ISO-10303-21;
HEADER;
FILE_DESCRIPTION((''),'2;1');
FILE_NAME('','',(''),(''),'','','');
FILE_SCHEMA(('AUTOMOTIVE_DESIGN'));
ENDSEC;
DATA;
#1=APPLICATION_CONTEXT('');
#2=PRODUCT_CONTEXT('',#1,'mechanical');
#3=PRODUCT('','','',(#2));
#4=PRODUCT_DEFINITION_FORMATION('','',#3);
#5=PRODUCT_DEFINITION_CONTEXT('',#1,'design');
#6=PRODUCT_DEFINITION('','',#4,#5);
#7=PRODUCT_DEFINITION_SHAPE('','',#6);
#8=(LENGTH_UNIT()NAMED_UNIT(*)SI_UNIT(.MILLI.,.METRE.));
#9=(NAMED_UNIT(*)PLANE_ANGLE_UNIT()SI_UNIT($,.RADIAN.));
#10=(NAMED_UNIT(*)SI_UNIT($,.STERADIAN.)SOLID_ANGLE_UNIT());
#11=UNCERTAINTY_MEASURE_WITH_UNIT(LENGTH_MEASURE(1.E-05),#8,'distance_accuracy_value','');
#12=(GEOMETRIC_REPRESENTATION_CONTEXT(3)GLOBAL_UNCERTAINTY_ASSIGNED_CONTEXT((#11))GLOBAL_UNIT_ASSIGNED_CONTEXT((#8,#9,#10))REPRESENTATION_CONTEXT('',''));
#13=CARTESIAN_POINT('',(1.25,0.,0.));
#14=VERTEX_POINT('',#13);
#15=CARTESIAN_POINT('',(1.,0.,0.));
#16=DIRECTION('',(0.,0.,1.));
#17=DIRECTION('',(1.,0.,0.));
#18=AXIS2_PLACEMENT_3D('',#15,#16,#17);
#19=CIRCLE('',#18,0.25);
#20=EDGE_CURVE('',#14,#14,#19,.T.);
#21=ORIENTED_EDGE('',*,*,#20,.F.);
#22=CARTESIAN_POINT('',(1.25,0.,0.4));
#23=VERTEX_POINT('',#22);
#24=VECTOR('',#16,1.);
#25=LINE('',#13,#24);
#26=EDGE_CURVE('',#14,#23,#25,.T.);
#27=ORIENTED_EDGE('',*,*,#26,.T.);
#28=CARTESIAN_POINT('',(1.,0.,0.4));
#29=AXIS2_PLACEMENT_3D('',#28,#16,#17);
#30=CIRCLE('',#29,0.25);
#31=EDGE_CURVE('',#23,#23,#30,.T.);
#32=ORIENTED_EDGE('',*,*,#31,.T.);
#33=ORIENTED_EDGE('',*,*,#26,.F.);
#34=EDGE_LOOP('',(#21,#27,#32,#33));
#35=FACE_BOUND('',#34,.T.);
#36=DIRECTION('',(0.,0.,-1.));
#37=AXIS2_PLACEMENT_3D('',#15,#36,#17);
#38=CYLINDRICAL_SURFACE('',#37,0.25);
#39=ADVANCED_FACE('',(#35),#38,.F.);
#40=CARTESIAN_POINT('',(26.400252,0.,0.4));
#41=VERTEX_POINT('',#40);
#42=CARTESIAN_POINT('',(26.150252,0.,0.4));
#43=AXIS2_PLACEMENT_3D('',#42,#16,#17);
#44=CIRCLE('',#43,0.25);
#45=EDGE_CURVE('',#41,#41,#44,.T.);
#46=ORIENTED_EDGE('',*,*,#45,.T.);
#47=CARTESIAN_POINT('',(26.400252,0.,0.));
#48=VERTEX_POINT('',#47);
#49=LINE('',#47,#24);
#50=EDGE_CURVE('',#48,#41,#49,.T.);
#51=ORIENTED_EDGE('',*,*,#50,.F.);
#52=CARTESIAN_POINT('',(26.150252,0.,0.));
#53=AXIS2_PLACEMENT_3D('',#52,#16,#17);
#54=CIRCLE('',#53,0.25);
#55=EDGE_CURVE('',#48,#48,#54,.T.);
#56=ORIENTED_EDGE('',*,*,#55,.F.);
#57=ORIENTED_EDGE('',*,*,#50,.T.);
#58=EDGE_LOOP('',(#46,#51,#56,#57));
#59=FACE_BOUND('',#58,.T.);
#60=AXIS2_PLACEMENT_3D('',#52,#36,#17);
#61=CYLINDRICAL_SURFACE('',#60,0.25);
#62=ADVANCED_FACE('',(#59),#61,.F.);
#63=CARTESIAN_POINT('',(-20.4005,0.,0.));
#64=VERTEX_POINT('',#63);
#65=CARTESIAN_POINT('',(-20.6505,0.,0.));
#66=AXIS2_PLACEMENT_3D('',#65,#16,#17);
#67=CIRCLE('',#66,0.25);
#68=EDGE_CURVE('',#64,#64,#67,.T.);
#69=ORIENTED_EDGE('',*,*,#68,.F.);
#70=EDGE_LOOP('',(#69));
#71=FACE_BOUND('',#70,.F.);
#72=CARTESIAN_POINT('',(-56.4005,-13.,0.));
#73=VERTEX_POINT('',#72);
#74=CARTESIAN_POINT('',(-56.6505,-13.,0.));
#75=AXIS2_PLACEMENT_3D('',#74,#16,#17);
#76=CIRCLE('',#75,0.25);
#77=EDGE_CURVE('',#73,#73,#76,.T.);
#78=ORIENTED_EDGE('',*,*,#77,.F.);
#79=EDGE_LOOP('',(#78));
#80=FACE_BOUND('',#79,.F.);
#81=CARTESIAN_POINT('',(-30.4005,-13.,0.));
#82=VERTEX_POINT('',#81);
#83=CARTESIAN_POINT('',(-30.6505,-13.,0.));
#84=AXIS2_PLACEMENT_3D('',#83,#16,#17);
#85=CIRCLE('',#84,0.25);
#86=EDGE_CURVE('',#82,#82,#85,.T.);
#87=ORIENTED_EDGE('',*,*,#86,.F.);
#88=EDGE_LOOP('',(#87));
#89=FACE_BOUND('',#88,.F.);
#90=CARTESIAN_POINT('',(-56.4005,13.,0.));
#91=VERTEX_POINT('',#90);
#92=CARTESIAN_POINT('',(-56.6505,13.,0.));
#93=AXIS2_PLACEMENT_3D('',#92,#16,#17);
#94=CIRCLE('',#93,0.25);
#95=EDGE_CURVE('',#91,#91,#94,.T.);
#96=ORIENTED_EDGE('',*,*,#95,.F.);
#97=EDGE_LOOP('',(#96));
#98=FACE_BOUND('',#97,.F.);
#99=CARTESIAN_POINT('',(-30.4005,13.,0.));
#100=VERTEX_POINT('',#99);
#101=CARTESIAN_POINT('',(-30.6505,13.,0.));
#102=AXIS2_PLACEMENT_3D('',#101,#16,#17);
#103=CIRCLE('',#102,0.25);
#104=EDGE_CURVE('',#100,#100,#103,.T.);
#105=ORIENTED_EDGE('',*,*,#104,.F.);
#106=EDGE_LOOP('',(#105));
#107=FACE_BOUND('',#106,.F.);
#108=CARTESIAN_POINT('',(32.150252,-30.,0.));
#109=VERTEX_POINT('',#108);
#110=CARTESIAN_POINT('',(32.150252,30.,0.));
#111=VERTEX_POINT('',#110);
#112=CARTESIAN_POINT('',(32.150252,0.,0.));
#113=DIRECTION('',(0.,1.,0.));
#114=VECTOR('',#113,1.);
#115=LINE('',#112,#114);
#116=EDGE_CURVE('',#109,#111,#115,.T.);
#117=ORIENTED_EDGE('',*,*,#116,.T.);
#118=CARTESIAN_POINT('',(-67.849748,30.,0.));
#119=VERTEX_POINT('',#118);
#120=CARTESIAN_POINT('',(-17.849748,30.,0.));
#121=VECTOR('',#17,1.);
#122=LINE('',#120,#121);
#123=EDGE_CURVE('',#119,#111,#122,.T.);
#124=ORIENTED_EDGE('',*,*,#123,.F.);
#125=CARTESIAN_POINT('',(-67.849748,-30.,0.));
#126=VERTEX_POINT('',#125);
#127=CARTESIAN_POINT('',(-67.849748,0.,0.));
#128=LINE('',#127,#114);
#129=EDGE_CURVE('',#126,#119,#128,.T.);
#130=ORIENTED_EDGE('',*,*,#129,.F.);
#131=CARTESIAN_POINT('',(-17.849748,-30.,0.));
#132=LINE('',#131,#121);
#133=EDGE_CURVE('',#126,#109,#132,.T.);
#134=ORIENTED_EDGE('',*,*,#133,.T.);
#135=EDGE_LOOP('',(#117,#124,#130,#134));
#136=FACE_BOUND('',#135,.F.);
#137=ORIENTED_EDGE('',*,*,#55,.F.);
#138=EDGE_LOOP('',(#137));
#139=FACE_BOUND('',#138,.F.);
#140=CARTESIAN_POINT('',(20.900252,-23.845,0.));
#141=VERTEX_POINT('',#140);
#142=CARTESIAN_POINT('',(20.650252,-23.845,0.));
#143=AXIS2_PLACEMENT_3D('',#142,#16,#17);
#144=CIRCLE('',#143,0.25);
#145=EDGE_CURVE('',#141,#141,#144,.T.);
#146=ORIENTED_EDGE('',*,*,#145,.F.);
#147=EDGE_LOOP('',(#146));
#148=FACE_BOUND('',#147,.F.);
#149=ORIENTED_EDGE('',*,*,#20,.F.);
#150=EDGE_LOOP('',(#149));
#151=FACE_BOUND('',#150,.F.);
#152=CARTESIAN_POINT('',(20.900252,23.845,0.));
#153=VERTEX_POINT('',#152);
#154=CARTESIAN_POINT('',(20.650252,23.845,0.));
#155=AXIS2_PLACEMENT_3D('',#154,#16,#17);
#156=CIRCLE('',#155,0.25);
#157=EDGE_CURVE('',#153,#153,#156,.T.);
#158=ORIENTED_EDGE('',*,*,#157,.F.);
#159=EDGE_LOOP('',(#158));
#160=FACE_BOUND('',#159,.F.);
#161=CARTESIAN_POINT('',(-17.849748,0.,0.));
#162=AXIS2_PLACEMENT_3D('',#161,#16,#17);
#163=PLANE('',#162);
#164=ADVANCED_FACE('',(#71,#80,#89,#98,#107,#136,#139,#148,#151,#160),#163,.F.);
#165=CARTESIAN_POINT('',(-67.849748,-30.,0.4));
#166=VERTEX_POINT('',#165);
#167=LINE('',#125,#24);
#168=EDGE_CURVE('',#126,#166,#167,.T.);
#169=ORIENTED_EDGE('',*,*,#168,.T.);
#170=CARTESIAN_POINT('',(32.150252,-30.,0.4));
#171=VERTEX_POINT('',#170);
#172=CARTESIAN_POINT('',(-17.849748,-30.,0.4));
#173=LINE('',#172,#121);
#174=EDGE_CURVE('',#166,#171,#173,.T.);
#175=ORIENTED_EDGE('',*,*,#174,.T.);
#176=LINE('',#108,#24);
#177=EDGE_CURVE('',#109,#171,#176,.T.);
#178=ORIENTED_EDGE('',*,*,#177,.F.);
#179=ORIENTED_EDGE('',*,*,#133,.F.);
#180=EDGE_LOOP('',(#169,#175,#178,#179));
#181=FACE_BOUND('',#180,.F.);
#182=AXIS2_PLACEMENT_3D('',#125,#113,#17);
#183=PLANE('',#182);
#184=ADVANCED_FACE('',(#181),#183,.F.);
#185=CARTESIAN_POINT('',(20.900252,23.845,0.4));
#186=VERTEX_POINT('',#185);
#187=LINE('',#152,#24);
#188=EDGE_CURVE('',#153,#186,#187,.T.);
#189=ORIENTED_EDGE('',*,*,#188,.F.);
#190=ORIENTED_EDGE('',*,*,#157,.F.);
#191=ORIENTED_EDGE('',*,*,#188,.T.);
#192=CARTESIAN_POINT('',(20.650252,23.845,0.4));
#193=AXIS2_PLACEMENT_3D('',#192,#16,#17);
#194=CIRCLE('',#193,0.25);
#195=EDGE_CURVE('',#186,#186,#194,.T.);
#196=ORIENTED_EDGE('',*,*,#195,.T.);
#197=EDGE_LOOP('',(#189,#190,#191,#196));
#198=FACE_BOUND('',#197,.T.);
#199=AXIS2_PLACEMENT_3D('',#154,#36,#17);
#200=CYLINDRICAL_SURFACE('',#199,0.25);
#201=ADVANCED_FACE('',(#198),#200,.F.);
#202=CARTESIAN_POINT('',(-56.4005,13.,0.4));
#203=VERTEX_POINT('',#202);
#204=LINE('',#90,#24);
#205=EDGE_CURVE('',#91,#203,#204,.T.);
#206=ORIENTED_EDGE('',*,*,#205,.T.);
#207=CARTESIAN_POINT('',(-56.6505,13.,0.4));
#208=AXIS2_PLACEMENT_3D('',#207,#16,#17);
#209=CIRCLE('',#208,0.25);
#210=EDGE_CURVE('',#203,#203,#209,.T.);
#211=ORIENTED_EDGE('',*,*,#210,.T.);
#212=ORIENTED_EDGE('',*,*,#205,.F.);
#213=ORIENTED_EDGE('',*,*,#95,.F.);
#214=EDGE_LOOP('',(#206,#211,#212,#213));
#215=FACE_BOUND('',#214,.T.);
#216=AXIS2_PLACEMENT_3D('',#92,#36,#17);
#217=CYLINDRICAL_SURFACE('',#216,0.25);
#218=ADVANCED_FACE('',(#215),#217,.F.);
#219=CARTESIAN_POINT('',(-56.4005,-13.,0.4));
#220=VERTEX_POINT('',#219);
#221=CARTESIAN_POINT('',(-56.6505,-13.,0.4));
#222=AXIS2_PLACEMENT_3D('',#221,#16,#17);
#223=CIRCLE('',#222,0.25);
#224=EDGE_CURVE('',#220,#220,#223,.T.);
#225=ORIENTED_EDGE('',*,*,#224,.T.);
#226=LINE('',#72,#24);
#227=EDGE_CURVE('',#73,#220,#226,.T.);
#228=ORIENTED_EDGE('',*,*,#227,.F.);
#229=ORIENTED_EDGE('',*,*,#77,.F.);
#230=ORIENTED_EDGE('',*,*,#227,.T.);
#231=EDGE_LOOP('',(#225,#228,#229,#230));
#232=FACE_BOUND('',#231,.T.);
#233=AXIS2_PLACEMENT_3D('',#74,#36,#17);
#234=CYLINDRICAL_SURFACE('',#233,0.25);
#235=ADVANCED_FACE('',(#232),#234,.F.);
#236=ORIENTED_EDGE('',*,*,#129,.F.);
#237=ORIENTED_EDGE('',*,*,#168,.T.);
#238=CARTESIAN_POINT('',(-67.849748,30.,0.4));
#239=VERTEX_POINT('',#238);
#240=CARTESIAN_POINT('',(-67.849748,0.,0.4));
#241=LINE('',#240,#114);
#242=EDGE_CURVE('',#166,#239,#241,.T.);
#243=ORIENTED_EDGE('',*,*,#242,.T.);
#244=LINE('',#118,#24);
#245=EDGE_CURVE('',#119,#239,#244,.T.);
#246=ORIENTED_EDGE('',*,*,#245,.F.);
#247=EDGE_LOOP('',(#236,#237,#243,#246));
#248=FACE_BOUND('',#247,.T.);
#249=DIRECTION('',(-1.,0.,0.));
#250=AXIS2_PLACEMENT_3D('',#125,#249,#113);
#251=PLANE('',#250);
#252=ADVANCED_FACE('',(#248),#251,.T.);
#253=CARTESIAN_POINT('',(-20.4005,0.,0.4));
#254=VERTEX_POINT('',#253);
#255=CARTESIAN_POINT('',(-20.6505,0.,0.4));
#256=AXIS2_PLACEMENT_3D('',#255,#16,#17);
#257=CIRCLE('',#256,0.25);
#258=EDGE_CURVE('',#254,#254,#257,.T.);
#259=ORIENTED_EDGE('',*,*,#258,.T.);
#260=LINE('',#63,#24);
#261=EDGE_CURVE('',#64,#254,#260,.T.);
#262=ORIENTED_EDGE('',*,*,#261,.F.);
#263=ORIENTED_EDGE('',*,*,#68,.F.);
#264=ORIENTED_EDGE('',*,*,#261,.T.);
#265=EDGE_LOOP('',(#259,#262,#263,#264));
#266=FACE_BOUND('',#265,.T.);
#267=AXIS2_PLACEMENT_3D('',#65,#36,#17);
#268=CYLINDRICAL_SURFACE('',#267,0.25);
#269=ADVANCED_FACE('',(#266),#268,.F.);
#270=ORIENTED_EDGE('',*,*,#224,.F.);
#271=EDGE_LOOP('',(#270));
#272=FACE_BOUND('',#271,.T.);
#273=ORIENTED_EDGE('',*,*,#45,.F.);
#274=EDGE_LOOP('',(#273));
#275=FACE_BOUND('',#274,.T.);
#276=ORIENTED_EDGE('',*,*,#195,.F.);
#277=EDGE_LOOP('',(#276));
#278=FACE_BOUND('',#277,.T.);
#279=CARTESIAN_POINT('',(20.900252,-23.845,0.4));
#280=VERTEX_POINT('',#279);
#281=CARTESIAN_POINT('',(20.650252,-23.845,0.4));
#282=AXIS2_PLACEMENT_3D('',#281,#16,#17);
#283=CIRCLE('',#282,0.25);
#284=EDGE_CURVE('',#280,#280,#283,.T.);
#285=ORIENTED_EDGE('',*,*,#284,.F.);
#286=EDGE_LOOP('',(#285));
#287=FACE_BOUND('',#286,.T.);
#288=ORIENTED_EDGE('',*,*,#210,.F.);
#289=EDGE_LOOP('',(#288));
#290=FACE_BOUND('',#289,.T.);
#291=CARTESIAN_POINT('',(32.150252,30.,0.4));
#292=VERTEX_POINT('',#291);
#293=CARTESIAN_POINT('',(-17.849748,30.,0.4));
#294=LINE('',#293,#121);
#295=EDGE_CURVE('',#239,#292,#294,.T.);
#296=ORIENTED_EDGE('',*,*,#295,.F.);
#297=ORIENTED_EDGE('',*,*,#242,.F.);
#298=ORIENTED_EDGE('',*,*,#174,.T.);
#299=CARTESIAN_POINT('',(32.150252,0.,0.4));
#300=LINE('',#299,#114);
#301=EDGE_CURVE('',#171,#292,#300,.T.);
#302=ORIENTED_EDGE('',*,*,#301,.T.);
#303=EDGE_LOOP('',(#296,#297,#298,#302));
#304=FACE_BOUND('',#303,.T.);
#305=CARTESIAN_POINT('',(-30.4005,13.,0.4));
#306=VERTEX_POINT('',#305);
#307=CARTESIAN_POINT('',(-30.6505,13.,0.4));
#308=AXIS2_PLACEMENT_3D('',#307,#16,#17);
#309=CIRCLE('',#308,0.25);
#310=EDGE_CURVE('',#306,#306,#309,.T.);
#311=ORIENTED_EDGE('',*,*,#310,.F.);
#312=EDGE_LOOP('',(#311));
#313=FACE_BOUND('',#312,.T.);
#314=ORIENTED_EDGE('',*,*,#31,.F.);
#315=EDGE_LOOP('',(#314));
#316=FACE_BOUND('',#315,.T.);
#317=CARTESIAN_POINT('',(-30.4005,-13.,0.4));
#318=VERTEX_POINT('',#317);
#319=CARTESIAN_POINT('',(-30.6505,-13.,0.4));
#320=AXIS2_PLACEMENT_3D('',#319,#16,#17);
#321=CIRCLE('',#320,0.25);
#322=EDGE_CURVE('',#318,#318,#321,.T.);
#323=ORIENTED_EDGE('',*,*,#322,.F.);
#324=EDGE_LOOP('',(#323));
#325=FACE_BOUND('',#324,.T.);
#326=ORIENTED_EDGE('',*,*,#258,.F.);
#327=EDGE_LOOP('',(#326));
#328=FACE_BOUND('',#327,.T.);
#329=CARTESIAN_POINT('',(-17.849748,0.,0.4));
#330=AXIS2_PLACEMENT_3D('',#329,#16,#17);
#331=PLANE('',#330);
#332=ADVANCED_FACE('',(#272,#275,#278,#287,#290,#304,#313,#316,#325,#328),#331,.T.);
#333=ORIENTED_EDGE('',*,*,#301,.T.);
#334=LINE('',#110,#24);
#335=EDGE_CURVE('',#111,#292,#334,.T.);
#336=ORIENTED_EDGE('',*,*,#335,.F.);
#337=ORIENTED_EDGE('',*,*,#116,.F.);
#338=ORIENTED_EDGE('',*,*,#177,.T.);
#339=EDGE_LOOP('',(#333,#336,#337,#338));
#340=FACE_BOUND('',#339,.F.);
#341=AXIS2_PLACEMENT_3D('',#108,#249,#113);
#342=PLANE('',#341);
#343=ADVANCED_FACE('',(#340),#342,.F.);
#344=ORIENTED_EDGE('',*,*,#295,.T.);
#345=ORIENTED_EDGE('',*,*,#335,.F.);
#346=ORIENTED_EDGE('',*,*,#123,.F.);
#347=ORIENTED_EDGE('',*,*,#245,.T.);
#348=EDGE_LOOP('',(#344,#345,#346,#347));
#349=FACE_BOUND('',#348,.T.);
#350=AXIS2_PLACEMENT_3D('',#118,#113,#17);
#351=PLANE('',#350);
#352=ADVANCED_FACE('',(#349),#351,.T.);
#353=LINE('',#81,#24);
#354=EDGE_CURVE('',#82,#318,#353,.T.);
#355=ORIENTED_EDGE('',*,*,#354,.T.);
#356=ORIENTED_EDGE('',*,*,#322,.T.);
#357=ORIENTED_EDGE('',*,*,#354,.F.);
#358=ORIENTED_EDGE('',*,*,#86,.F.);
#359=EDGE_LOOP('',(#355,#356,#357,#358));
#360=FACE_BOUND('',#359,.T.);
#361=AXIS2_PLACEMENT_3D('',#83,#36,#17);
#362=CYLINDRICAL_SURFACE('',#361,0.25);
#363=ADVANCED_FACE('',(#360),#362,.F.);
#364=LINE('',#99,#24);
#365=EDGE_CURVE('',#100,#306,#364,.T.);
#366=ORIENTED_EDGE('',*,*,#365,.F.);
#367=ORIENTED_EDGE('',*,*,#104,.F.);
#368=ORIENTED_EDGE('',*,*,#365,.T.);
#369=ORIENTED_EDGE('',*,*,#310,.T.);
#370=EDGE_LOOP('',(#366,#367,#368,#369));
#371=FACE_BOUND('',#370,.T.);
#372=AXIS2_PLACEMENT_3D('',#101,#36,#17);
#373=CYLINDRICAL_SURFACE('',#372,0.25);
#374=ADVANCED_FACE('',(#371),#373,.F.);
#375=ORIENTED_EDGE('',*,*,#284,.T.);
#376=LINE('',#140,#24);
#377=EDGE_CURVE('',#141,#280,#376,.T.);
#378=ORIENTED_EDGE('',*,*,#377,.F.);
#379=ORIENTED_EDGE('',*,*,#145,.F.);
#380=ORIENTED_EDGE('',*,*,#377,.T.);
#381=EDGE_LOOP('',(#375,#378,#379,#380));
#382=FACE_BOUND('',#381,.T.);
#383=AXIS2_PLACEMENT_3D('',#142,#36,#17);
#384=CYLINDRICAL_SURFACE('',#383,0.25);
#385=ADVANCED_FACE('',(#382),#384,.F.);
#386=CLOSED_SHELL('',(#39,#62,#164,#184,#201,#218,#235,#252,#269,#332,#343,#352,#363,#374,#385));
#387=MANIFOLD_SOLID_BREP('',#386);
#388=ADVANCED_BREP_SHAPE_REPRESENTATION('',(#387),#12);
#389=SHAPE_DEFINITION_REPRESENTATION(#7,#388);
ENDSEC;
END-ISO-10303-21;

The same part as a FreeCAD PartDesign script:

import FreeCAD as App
import Part
import Sketcher

doc = App.newDocument("Part")
body = doc.addObject("PartDesign::Body", "Body")

sketch1 = body.newObject("Sketcher::SketchObject", "Sketch")
sketch1.AttachmentSupport = (doc.getObject("XY_Plane"), [""])
sketch1.MapMode = "FlatFace"
sketch1.addGeometry(Part.LineSegment(App.Vector(-67.849748, 30, 0), App.Vector(-67.849748, -30, 0)), False)
sketch1.addGeometry(Part.LineSegment(App.Vector(-67.849748, -30, 0), App.Vector(32.150252, -30, 0)), False)
sketch1.addGeometry(Part.LineSegment(App.Vector(32.150252, -30, 0), App.Vector(32.150252, 30, 0)), False)
sketch1.addGeometry(Part.LineSegment(App.Vector(32.150252, 30, 0), App.Vector(-67.849748, 30, 0)), False)
sketch1.addGeometry(Part.Circle(App.Vector(-56.6505, -13, 0), App.Vector(0, 0, 1), 0.25), False)
sketch1.addGeometry(Part.Circle(App.Vector(-30.6505, -13, 0), App.Vector(0, 0, 1), 0.25), False)
sketch1.addGeometry(Part.Circle(App.Vector(20.650252, -23.845, 0), App.Vector(0, 0, 1), 0.25), False)
sketch1.addGeometry(Part.Circle(App.Vector(-20.6505, 0, 0), App.Vector(0, 0, 1), 0.25), False)
sketch1.addGeometry(Part.Circle(App.Vector(-56.6505, 13, 0), App.Vector(0, 0, 1), 0.25), False)
sketch1.addGeometry(Part.Circle(App.Vector(-30.6505, 13, 0), App.Vector(0, 0, 1), 0.25), False)
sketch1.addGeometry(Part.Circle(App.Vector(1, 0, 0), App.Vector(0, 0, 1), 0.25), False)
sketch1.addGeometry(Part.Circle(App.Vector(26.150252, 0, 0), App.Vector(0, 0, 1), 0.25), False)
sketch1.addGeometry(Part.Circle(App.Vector(20.650252, 23.845, 0), App.Vector(0, 0, 1), 0.25), False)
sketch1.addConstraint(Sketcher.Constraint("Coincident", 0, 2, 1, 1))
sketch1.addConstraint(Sketcher.Constraint("Coincident", 1, 2, 2, 1))
sketch1.addConstraint(Sketcher.Constraint("Coincident", 2, 2, 3, 1))
sketch1.addConstraint(Sketcher.Constraint("Coincident", 3, 2, 0, 1))
sketch1.addConstraint(Sketcher.Constraint("Vertical", 0))
sketch1.addConstraint(Sketcher.Constraint("Horizontal", 1))
sketch1.addConstraint(Sketcher.Constraint("Vertical", 2))
sketch1.addConstraint(Sketcher.Constraint("Horizontal", 3))
sketch1.addConstraint(Sketcher.Constraint("Equal", 4, 5))
sketch1.addConstraint(Sketcher.Constraint("Equal", 5, 6))
sketch1.addConstraint(Sketcher.Constraint("Equal", 6, 7))
sketch1.addConstraint(Sketcher.Constraint("Equal", 7, 8))
sketch1.addConstraint(Sketcher.Constraint("Equal", 8, 9))
sketch1.addConstraint(Sketcher.Constraint("Equal", 9, 10))
sketch1.addConstraint(Sketcher.Constraint("Equal", 10, 11))
sketch1.addConstraint(Sketcher.Constraint("Equal", 11, 12))
sketch1.addConstraint(Sketcher.Constraint("Symmetric", 4, 3, 8, 3, -1))
sketch1.addConstraint(Sketcher.Constraint("Symmetric", 5, 3, 9, 3, -1))
sketch1.addConstraint(Sketcher.Constraint("Symmetric", 6, 3, 12, 3, -1))
sketch1.addConstraint(Sketcher.Constraint("PointOnObject", 7, 3, -1))
sketch1.addConstraint(Sketcher.Constraint("PointOnObject", 10, 3, -1))
sketch1.addConstraint(Sketcher.Constraint("PointOnObject", 11, 3, -1))
sketch1.addConstraint(Sketcher.Constraint("Horizontal", 4, 3, 5, 3))
sketch1.addConstraint(Sketcher.Constraint("Diameter", 4, 0.5))
sketch1.addConstraint(Sketcher.Constraint("DistanceX", 1, 1, 1, 2, 100.0))
sketch1.addConstraint(Sketcher.Constraint("DistanceY", 0, 2, 0, 1, 60.0))
sketch1.addConstraint(Sketcher.Constraint("DistanceY", 4, 3, -1, 1, 13.0))
sketch1.addConstraint(Sketcher.Constraint("DistanceX", -1, 1, 10, 3, 1.0))
sketch1.addConstraint(Sketcher.Constraint("DistanceY", 0, 2, -1, 1, 30.0))
sketch1.addConstraint(Sketcher.Constraint("DistanceX", 4, 3, 5, 3, 26.0))
sketch1.addConstraint(Sketcher.Constraint("DistanceX", 5, 3, 7, 3, 10.0))
sketch1.addConstraint(Sketcher.Constraint("DistanceX", 11, 3, 1, 2, 6.0))
sketch1.addConstraint(Sketcher.Constraint("DistanceX", 6, 3, 11, 3, 5.5))
sketch1.addConstraint(Sketcher.Constraint("DistanceY", 6, 3, 12, 3, 47.69))
sketch1.addConstraint(Sketcher.Constraint("DistanceX", 4, 3, -1, 1, 56.6505))
sketch1.addConstraint(Sketcher.Constraint("DistanceX", -1, 1, 6, 3, 20.650252))
pad1 = body.newObject("PartDesign::Pad", "Pad")
pad1.Profile = sketch1
pad1.Length = 0.4

doc.recompute()
